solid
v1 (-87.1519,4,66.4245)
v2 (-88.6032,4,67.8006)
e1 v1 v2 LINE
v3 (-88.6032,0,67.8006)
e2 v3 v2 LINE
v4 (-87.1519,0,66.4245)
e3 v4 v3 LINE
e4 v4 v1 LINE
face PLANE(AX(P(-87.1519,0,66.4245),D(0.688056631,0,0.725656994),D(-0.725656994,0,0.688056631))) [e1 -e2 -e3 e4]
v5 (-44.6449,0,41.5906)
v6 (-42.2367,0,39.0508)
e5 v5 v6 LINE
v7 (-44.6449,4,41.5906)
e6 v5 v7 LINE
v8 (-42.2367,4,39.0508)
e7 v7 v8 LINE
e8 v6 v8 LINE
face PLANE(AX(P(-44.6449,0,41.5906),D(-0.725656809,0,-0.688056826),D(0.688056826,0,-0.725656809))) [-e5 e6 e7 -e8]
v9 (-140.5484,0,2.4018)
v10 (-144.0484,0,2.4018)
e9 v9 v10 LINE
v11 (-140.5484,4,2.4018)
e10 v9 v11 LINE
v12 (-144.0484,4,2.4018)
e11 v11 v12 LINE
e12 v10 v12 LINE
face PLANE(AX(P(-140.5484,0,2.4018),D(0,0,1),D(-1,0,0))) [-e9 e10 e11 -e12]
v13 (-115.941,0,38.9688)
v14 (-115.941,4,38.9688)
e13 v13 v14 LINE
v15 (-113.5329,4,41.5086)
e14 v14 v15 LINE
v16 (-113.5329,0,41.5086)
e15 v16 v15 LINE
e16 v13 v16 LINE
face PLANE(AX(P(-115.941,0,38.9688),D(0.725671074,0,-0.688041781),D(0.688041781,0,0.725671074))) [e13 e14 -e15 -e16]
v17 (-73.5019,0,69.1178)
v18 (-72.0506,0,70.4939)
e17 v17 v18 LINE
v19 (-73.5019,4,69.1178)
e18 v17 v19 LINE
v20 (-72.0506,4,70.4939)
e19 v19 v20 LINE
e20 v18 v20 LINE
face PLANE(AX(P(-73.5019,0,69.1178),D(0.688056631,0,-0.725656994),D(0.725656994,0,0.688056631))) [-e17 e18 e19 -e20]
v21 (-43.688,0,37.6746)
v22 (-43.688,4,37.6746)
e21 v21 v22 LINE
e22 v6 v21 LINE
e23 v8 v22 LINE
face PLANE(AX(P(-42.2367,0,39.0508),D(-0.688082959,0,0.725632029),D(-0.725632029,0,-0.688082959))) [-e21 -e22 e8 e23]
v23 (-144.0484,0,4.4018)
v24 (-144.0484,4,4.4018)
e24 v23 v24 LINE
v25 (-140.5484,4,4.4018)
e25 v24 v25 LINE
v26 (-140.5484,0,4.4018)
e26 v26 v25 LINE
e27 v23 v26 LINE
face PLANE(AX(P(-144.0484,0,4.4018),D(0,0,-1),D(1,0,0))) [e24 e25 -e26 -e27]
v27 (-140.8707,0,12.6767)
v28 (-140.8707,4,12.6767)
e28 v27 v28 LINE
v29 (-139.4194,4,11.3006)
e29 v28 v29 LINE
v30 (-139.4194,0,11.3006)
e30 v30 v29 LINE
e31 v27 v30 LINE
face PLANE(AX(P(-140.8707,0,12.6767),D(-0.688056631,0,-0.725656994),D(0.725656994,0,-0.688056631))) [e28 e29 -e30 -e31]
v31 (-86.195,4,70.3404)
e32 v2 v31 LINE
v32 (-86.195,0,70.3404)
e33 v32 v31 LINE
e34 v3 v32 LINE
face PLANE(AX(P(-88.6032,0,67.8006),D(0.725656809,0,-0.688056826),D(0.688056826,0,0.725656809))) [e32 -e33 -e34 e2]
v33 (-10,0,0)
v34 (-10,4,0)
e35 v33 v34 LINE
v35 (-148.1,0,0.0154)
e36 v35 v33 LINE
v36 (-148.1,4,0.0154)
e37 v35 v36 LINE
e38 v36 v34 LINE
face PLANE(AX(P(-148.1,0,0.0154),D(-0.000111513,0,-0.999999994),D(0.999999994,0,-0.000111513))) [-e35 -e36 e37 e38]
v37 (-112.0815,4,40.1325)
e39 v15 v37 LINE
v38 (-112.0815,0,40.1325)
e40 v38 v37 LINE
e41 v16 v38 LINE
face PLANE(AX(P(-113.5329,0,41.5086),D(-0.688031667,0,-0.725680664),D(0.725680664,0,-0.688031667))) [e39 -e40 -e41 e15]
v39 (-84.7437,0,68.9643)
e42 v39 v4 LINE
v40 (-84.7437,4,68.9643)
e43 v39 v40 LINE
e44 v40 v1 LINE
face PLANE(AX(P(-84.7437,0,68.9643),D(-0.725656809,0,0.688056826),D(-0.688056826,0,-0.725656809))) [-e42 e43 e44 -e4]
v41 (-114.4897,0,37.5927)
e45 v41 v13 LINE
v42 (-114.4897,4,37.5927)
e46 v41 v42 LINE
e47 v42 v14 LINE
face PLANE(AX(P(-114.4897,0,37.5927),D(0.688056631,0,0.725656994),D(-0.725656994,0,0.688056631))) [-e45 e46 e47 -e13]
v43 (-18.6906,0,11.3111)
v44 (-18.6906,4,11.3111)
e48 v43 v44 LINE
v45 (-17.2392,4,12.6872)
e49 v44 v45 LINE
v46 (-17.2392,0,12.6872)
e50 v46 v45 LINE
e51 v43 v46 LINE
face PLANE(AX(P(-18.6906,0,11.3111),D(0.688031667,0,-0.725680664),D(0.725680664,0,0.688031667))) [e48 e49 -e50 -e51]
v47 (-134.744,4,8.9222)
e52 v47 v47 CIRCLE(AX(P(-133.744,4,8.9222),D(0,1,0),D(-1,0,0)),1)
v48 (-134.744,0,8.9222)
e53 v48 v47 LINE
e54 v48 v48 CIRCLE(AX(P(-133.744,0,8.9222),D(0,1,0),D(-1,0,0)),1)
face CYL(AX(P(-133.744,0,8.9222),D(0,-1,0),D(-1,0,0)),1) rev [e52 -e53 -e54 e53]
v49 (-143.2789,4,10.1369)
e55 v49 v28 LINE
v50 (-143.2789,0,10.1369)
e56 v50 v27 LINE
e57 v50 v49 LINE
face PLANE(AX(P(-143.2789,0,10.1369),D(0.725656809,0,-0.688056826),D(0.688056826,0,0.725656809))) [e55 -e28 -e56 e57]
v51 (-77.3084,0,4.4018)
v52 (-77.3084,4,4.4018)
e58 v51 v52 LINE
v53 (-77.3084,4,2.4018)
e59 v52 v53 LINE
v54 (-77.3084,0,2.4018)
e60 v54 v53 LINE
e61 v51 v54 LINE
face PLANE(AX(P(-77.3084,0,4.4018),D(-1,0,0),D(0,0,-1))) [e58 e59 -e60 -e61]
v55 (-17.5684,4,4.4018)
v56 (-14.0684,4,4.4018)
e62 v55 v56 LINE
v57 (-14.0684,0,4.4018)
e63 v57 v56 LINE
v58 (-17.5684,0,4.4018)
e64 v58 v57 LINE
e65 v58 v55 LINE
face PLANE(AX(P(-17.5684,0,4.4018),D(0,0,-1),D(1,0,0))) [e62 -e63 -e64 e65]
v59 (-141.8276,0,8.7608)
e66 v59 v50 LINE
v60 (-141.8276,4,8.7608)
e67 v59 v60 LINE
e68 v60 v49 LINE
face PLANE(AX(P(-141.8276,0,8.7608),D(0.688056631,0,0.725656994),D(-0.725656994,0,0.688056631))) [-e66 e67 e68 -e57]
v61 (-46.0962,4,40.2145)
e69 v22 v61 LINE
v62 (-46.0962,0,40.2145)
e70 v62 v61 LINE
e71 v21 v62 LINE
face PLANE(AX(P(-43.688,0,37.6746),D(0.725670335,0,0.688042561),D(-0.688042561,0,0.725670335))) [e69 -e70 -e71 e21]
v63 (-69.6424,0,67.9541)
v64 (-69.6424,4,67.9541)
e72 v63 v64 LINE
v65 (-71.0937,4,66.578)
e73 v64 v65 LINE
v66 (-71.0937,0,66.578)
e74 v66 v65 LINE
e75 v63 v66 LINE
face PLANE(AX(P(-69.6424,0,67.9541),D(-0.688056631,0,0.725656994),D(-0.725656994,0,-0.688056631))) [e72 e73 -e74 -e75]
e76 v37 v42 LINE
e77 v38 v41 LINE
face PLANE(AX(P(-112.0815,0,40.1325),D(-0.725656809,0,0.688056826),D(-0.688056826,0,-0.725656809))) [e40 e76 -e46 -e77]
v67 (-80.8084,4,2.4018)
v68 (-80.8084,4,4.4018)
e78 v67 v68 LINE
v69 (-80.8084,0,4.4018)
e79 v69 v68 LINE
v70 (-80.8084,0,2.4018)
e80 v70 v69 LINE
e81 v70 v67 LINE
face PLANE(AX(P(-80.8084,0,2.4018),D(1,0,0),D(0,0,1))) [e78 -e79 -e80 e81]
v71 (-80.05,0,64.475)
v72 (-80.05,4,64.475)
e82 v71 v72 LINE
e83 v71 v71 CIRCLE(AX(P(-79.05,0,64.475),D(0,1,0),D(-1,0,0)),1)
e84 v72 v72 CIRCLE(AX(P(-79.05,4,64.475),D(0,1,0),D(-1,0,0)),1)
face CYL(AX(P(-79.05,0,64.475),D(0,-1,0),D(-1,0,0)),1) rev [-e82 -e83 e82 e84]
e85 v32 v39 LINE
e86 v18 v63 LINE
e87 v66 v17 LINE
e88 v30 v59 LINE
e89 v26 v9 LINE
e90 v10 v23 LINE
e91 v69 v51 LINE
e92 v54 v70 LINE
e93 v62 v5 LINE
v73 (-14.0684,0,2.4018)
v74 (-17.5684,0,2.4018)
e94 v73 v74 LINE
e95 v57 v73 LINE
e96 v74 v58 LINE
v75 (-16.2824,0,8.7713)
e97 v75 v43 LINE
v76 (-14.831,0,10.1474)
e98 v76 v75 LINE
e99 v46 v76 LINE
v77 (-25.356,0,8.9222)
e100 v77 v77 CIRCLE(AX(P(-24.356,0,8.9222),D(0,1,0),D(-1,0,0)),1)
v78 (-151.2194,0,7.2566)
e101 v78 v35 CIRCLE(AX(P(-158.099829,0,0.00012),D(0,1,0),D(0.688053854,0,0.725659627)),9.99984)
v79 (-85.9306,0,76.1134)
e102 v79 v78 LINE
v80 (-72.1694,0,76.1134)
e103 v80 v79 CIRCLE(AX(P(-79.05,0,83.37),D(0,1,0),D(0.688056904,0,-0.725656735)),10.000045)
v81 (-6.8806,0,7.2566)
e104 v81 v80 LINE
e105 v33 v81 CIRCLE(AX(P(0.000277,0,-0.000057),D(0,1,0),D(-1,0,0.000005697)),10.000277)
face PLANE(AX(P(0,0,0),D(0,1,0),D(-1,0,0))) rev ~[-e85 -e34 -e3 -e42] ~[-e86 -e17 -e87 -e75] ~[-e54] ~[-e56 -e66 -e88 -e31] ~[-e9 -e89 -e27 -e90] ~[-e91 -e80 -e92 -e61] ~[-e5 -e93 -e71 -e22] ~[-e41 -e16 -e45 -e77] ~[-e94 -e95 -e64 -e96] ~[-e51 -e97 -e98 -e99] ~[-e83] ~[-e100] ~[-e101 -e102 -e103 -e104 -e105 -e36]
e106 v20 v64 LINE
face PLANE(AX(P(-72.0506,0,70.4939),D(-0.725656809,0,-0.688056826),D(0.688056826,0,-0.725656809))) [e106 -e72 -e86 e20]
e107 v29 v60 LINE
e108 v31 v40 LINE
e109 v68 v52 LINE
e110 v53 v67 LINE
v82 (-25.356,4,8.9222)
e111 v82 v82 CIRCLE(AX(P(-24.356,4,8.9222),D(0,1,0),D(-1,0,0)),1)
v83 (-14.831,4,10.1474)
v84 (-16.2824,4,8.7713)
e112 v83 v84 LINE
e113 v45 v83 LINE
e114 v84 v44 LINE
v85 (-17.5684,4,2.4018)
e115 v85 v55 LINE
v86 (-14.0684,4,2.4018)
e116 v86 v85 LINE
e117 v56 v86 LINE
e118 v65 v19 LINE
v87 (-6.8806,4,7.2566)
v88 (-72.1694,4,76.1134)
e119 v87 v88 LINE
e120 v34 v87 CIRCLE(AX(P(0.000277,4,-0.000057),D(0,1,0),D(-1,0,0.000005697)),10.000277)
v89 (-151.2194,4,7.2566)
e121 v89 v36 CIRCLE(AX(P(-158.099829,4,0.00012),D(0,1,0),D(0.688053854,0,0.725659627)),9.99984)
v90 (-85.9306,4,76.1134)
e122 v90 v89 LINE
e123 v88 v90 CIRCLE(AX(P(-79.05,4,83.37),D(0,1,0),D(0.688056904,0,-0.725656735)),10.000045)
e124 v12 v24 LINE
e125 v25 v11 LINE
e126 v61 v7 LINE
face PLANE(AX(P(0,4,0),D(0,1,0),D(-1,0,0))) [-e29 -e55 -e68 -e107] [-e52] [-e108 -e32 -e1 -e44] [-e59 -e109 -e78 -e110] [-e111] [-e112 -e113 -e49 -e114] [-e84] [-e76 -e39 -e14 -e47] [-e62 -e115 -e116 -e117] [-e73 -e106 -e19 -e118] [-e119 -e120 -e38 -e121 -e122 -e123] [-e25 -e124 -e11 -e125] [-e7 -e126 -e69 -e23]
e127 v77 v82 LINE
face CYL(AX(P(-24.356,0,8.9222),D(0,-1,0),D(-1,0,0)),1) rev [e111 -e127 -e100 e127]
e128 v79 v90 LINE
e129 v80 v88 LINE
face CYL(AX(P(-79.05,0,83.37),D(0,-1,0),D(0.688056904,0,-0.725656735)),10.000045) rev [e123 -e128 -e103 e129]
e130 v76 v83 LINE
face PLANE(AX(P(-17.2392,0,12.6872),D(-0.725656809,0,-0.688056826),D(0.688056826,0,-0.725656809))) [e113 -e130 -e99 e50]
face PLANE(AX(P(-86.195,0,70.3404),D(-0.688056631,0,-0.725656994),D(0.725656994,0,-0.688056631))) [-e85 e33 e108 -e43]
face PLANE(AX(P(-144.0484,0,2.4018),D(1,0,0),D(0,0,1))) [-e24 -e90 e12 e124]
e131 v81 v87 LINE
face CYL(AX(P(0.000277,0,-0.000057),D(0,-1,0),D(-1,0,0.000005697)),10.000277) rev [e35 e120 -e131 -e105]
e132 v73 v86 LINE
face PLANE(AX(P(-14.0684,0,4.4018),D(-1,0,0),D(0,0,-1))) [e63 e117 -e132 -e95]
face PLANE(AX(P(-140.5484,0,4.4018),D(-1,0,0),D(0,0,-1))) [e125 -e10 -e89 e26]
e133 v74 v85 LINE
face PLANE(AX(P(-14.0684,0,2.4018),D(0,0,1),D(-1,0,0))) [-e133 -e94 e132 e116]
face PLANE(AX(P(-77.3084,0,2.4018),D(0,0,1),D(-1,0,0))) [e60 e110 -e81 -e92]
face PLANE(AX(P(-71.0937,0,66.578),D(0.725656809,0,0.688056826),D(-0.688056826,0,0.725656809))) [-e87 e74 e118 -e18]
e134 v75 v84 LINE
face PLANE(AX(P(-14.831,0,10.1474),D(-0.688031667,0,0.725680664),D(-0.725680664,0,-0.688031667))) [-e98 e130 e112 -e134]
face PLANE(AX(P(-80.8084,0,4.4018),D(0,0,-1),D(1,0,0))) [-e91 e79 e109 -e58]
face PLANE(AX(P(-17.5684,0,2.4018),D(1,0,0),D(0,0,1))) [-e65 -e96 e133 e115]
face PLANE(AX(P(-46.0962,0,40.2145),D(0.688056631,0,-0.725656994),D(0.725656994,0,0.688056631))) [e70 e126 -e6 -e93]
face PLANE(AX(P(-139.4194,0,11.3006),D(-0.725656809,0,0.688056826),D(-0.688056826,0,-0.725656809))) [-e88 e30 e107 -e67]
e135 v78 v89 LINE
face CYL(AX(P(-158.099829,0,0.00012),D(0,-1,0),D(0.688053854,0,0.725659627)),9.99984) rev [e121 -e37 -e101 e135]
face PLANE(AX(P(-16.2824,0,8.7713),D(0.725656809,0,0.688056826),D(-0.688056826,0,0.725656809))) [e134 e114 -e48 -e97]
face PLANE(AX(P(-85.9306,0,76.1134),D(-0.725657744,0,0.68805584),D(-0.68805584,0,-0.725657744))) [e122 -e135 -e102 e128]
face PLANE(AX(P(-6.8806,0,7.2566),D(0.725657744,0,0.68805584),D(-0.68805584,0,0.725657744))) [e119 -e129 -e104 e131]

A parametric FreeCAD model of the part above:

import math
import FreeCAD as App
import Part
import Sketcher


def add_polygon(sketch, points):
    """Adds a closed chain of lines whose ends are joined by coincident constraints."""
    first, n = sketch.GeometryCount, len(points)
    for a, b in zip(points, points[1:] + points[:1]):
        sketch.addGeometry(Part.LineSegment(App.Vector(*a, 0), App.Vector(*b, 0)), False)
    for i in range(n):
        sketch.addConstraint(Sketcher.Constraint("Coincident", first + i, 2, first + (i + 1) % n, 1))

doc = App.newDocument("Part")
body = doc.addObject("PartDesign::Body", "Body")

sketch1 = body.newObject("Sketcher::SketchObject", "Sketch")
sketch1.AttachmentSupport = (doc.getObject("XZ_Plane"), [""])
sketch1.MapMode = "FlatFace"
sketch1.addGeometry(Part.ArcOfCircle(Part.Circle(App.Vector(0, 0, 0), App.Vector(0, 0, 1), 10), math.radians(133.476492), math.radians(180)), False)
sketch1.addGeometry(Part.LineSegment(App.Vector(-10, 0, 0), App.Vector(-148.1, 0.0154, 0)), False)
sketch1.addGeometry(Part.ArcOfCircle(Part.Circle(App.Vector(-158.1, 0, 0), App.Vector(0, 0, 1), 10.000045), math.radians(0.088235), math.radians(46.523508)), False)
sketch1.addGeometry(Part.LineSegment(App.Vector(-151.2194, 7.2566, 0), App.Vector(-85.9306, 76.1134, 0)), False)
sketch1.addGeometry(Part.ArcOfCircle(Part.Circle(App.Vector(-79.05, 83.37, 0), App.Vector(0, 0, 1), 10.000045), math.radians(-133.476492), math.radians(-46.523508)), False)
sketch1.addGeometry(Part.LineSegment(App.Vector(-72.1694, 76.1134, 0), App.Vector(-6.8806, 7.2566, 0)), False)
add_polygon(sketch1, [(-17.5684, 2.4018), (-14.0684, 2.4018), (-14.0684, 4.4018), (-17.5684, 4.4018)])
sketch1.addGeometry(Part.Circle(App.Vector(-24.356, 8.9222, 0), App.Vector(0, 0, 1), 1), False)
add_polygon(sketch1, [(-18.6906, 11.3111), (-16.2824, 8.7713), (-14.831, 10.1474), (-17.2392, 12.6872)])
add_polygon(sketch1, [(-80.8084, 2.4018), (-77.3084, 2.4018), (-77.3084, 4.4018), (-80.8084, 4.4018)])
add_polygon(sketch1, [(-144.0484, 2.4018), (-140.5484, 2.4018), (-140.5484, 4.4018), (-144.0484, 4.4018)])
sketch1.addGeometry(Part.Circle(App.Vector(-133.744, 8.9222, 0), App.Vector(0, 0, 1), 1), False)
add_polygon(sketch1, [(-140.8707, 12.6767), (-143.2789, 10.1369), (-141.8276, 8.7608), (-139.4194, 11.3006)])
add_polygon(sketch1, [(-46.0962, 40.2145), (-43.688, 37.6746), (-42.2367, 39.0508), (-44.6449, 41.5906)])
sketch1.addGeometry(Part.Circle(App.Vector(-79.05, 64.475, 0), App.Vector(0, 0, 1), 1), False)
add_polygon(sketch1, [(-73.5019, 69.1178), (-71.0937, 66.578), (-69.6424, 67.9541), (-72.0506, 70.4939)])
add_polygon(sketch1, [(-113.5329, 41.5086), (-115.941, 38.9688), (-114.4897, 37.5927), (-112.0815, 40.1325)])
add_polygon(sketch1, [(-86.195, 70.3404), (-88.6032, 67.8006), (-87.1519, 66.4245), (-84.7437, 68.9643)])
sketch1.addConstraint([
    Sketcher.Constraint("Coincident", 0, 2, 1, 1),
    Sketcher.Constraint("Coincident", 1, 2, 2, 1),
    Sketcher.Constraint("Coincident", 2, 2, 3, 1),
    Sketcher.Constraint("Coincident", 3, 2, 4, 1),
    Sketcher.Constraint("Coincident", 4, 2, 5, 1),
    Sketcher.Constraint("Coincident", 5, 2, 0, 1),
    Sketcher.Constraint("Horizontal", 6),
    Sketcher.Constraint("Vertical", 7),
    Sketcher.Constraint("Horizontal", 8),
    Sketcher.Constraint("Vertical", 9),
    Sketcher.Constraint("Horizontal", 15),
    Sketcher.Constraint("Vertical", 16),
    Sketcher.Constraint("Horizontal", 17),
    Sketcher.Constraint("Vertical", 18),
    Sketcher.Constraint("Horizontal", 19),
    Sketcher.Constraint("Vertical", 20),
    Sketcher.Constraint("Horizontal", 21),
    Sketcher.Constraint("Vertical", 22),
    Sketcher.Constraint("Coincident", 0, 3, -1, 1),
    Sketcher.Constraint("PointOnObject", 2, 3, -1),
    Sketcher.Constraint("PointOnObject", 0, 2, -1),
    Sketcher.Constraint("Diameter", 10, 2.0),
    Sketcher.Constraint("Diameter", 23, 2.0),
    Sketcher.Constraint("Diameter", 32, 2.0),
    Sketcher.Constraint("Radius", 0, 10.0),
    Sketcher.Constraint("Radius", 2, 10.0),
    Sketcher.Constraint("Radius", 4, 10.0),
    Sketcher.Constraint("DistanceY", 7, 1, 7, 2, 2.0),
    Sketcher.Constraint("DistanceY", 16, 1, 16, 2, 2.0),
    Sketcher.Constraint("DistanceY", 20, 1, 20, 2, 2.0),
    Sketcher.Constraint("Distance", 12, 2.0),
    Sketcher.Constraint("Distance", 14, 2.0),
    Sketcher.Constraint("Distance", 25, 2.0),
    Sketcher.Constraint("Distance", 27, 2.0),
    Sketcher.Constraint("Distance", 29, 2.0),
    Sketcher.Constraint("Distance", 31, 2.0),
    Sketcher.Constraint("Distance", 34, 2.0),
    Sketcher.Constraint("Distance", 36, 2.0),
    Sketcher.Constraint("Distance", 38, 2.0),
    Sketcher.Constraint("Distance", 40, 2.0),
    Sketcher.Constraint("Distance", 42, 2.0),
    Sketcher.Constraint("Distance", 44, 2.0),
    Sketcher.Constraint("DistanceX", 6, 1, 6, 2, 3.5),
    Sketcher.Constraint("DistanceX", 15, 1, 15, 2, 3.5),
    Sketcher.Constraint("DistanceX", 19, 1, 19, 2, 3.5),
    Sketcher.Constraint("DistanceY", 15, 2, 8, 2, 2.0),
    Sketcher.Constraint("Distance", 1, 138.1),
    Sketcher.Constraint("Distance", 11, 3.5),
    Sketcher.Constraint("Distance", 13, 3.5),
    Sketcher.Constraint("Distance", 24, 3.5),
    Sketcher.Constraint("Distance", 26, 3.5),
    Sketcher.Constraint("Distance", 28, 3.5),
    Sketcher.Constraint("Distance", 30, 3.5),
    Sketcher.Constraint("Distance", 33, 3.5),
    Sketcher.Constraint("Distance", 35, 3.5),
    Sketcher.Constraint("Distance", 37, 3.5),
    Sketcher.Constraint("Distance", 39, 3.5),
    Sketcher.Constraint("Distance", 41, 3.5),
    Sketcher.Constraint("Distance", 43, 3.5),
    Sketcher.Constraint("DistanceX", 4, 3, -1, 1, 79.05),
    Sketcher.Constraint("DistanceY", -1, 1, 4, 3, 83.37),
    Sketcher.Constraint("DistanceX", 32, 3, -1, 1, 79.05),
    Sketcher.Constraint("DistanceX", 15, 2, 9, 2, 59.74),
    Sketcher.Constraint("DistanceX", 19, 2, 18, 2, 59.74),
    Sketcher.Constraint("DistanceY", 28, 2, 31, 2, 2.54),
    Sketcher.Constraint("DistanceX", 42, 2, 36, 2, 13.65),
    Sketcher.Constraint("DistanceX", 10, 3, -1, 1, 24.356),
    Sketcher.Constraint("DistanceX", 23, 3, -1, 1, 133.744),
    Sketcher.Constraint("DistanceY", -1, 1, 32, 3, 64.475),
    Sketcher.Constraint("DistanceX", 12, 2, -1, 1, 14.831),
    Sketcher.Constraint("DistanceY", -1, 1, 14, 2, 11.311),
    Sketcher.Constraint("DistanceX", 24, 2, -1, 1, 143.279),
    Sketcher.Constraint("DistanceY", -1, 1, 24, 2, 10.137),
    Sketcher.Constraint("DistanceX", 28, 2, -1, 1, 43.688),
    Sketcher.Constraint("DistanceX", 30, 2, -1, 1, 44.645),
    Sketcher.Constraint("DistanceY", -1, 1, 33, 2, 66.578),
    Sketcher.Constraint("DistanceY", -1, 1, 34, 2, 67.954),
    Sketcher.Constraint("DistanceY", -1, 1, 35, 2, 70.494),
    Sketcher.Constraint("DistanceX", 36, 2, -1, 1, 73.502),
    Sketcher.Constraint("DistanceX", 37, 2, -1, 1, 115.941),
    Sketcher.Constraint("DistanceX", 40, 2, -1, 1, 113.533),
    Sketcher.Constraint("DistanceX", 44, 2, -1, 1, 86.195),
    Sketcher.Constraint("DistanceX", 8, 2, 11, 2, 1.286),
    Sketcher.Constraint("DistanceY", 11, 2, 10, 3, 0.151),
    Sketcher.Constraint("DistanceY", 11, 2, 12, 2, 1.376),
    Sketcher.Constraint("DistanceY", 11, 2, 13, 2, 3.916),
    Sketcher.Constraint("DistanceX", 2, 2, 19, 2, 10.671),
    Sketcher.Constraint("DistanceY", 21, 2, 24, 2, 5.735),
    Sketcher.Constraint("DistanceY", 25, 2, 24, 2, 1.376),
    Sketcher.Constraint("DistanceX", 20, 2, 26, 2, 1.129),
    Sketcher.Constraint("DistanceX", 3, 2, 33, 2, 14.837),
    Sketcher.Constraint("DistanceX", 4, 2, 34, 2, 2.527),
    Sketcher.Constraint("DistanceY", 27, 2, 37, 2, 26.292),
    Sketcher.Constraint("DistanceY", 38, 2, 37, 2, 1.376),
    Sketcher.Constraint("DistanceY", 42, 2, 41, 2, 1.376),
    Sketcher.Constraint("DistanceY", 42, 2, 3, 2, 9.689),
    Sketcher.Constraint("DistanceY", -1, 1, 23, 3, 8.9222),
    Sketcher.Constraint("DistanceY", -1, 1, 1, 2, 0.0154),
    Sketcher.Constraint("DistanceX", 5, 2, -1, 1, 6.8806),
    Sketcher.Constraint("DistanceY", -1, 1, 6, 2, 2.4018),
    Sketcher.Constraint("DistanceY", -1, 1, 28, 2, 37.6746),
])
pad1 = body.newObject("PartDesign::Pad", "Pad")
pad1.Profile = sketch1
pad1.Length = 4
pad1.Reversed = True

doc.recompute()
